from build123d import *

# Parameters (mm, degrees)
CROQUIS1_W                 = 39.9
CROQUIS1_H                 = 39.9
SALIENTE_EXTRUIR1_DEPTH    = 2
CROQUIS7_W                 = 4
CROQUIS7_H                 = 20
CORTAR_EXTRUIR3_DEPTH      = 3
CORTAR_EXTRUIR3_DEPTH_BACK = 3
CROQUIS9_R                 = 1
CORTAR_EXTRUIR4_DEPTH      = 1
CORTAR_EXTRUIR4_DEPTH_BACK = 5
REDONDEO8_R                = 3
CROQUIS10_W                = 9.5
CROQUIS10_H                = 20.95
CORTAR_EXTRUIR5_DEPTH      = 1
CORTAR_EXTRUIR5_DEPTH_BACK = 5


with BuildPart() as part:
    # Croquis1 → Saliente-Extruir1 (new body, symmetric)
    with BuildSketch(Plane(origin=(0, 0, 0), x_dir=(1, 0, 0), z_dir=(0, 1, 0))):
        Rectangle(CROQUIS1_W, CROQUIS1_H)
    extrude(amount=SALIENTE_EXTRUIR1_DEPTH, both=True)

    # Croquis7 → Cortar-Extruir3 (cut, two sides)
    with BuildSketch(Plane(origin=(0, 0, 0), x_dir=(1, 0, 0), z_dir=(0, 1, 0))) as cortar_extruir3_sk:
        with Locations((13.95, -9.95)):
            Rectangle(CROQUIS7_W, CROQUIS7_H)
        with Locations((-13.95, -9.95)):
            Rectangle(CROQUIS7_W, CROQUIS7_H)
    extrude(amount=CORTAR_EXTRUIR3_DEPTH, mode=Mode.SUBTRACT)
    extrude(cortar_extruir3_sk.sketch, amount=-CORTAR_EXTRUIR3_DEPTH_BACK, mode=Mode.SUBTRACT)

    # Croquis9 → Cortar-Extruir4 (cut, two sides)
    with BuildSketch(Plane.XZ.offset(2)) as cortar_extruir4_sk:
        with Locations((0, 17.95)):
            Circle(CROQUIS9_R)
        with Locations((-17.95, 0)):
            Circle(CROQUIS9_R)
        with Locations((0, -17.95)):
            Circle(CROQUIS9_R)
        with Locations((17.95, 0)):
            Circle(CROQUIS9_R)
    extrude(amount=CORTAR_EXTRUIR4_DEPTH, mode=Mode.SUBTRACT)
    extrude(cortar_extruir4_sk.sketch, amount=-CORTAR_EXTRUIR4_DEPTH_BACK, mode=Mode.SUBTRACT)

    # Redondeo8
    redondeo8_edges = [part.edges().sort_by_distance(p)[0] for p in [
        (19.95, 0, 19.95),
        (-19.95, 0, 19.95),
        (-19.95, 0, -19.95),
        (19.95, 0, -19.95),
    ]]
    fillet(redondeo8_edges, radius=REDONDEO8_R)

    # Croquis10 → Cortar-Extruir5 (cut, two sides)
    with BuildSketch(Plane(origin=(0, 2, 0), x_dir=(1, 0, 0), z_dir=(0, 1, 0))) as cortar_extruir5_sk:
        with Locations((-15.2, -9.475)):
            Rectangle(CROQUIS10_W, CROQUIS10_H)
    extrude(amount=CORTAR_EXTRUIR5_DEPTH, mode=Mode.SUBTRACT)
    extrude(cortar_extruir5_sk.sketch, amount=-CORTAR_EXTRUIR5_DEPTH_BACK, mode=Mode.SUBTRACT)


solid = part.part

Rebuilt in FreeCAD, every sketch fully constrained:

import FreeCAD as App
import Part
import Sketcher

V = App.Vector


def edges_at(feature, points):
    """Names of the edges that pass closest to the given points."""
    edges = feature.Shape.Edges
    near = lambda p: min(range(len(edges)), key=lambda i: edges[i].distToShape(Part.Vertex(*p))[0])
    return sorted({f"Edge{near(p) + 1}" for p in points})


def add_polygon(sketch, points):
    """Adds a closed chain of lines whose ends are joined by coincident constraints."""
    first, n = sketch.GeometryCount, len(points)
    for a, b in zip(points, points[1:] + points[:1]):
        sketch.addGeometry(Part.LineSegment(App.Vector(*a, 0), App.Vector(*b, 0)), False)
    for i in range(n):
        sketch.addConstraint(Sketcher.Constraint("Coincident", first + i, 2, first + (i + 1) % n, 1))

doc = App.newDocument("Part")
body = doc.addObject("PartDesign::Body", "Body")

# Sketch on XZ plane
sketch1 = body.newObject("Sketcher::SketchObject", "Sketch")
sketch1.AttachmentSupport = (doc.getObject("XZ_Plane"), [""])
sketch1.MapMode = "FlatFace"
add_polygon(sketch1, [(-19.95, -19.95), (-19.95, 19.95), (19.95, 19.95), (19.95, -19.95)])  # lines 0-3
sketch1.addConstraint([
    Sketcher.Constraint("Vertical", 0),
    Sketcher.Constraint("Horizontal", 1),
    Sketcher.Constraint("Vertical", 2),
    Sketcher.Constraint("Horizontal", 3),
    Sketcher.Constraint("Symmetric", 0, 2, 2, 2, -1, 1),
    Sketcher.Constraint("Equal", 3, 0),
    Sketcher.Constraint("DistanceX", 1, 1, 1, 2, 39.9),
])
pad1 = body.newObject("PartDesign::Pad", "Pad")
pad1.Profile = sketch1
pad1.Length = 4
pad1.Midplane = True

# Sketch on XZ plane
sketch2 = body.newObject("Sketcher::SketchObject", "Sketch001")
sketch2.AttachmentSupport = (doc.getObject("XZ_Plane"), [""])
sketch2.MapMode = "FlatFace"
add_polygon(sketch2, [(11.95, -0.05), (11.95, 19.95), (15.95, 19.95), (15.95, -0.05)])  # lines 0-3
add_polygon(sketch2, [(-15.95, -0.05), (-15.95, 19.95), (-11.95, 19.95), (-11.95, -0.05)])  # lines 4-7
sketch2.addConstraint([
    Sketcher.Constraint("Vertical", 0),
    Sketcher.Constraint("Horizontal", 1),
    Sketcher.Constraint("Vertical", 2),
    Sketcher.Constraint("Horizontal", 3),
    Sketcher.Constraint("Vertical", 4),
    Sketcher.Constraint("Horizontal", 5),
    Sketcher.Constraint("Vertical", 6),
    Sketcher.Constraint("Horizontal", 7),
    Sketcher.Constraint("Symmetric", 1, 2, 4, 2, -2),
    Sketcher.Constraint("Symmetric", 3, 2, 6, 2, -2),
    Sketcher.Constraint("DistanceX", 1, 1, 1, 2, 4.0),
    Sketcher.Constraint("DistanceY", 0, 1, 0, 2, 20.0),
    Sketcher.Constraint("DistanceX", 4, 2, 0, 2, 27.9),
    Sketcher.Constraint("DistanceY", -1, 1, 0, 2, 19.95),
])
pocket1 = body.newObject("PartDesign::Pocket", "Pocket")
pocket1.Profile = sketch2
pocket1.Type = "ThroughAll"
pocket1.Midplane = True

# Sketch on XZ plane
sketch3 = body.newObject("Sketcher::SketchObject", "Sketch002")
sketch3.AttachmentSupport = (doc.getObject("XZ_Plane"), [""])
sketch3.MapMode = "FlatFace"
sketch3.AttachmentOffset = App.Placement(V(0, 0, 2), App.Rotation())
sketch3.addGeometry([
    Part.Circle(V(0, 17.95, 0), V(0, 0, 1), 1),
    Part.Circle(V(-17.95, 0, 0), V(0, 0, 1), 1),
    Part.Circle(V(0, -17.95, 0), V(0, 0, 1), 1),
    Part.Circle(V(17.95, 0, 0), V(0, 0, 1), 1),
], False)
sketch3.addConstraint([
    Sketcher.Constraint("Equal", 0, 1),
    Sketcher.Constraint("Equal", 1, 2),
    Sketcher.Constraint("Equal", 2, 3),
    Sketcher.Constraint("Symmetric", 0, 3, 2, 3, -1, 1),
    Sketcher.Constraint("Symmetric", 1, 3, 3, 3, -1, 1),
    Sketcher.Constraint("PointOnObject", 0, 3, -2),
    Sketcher.Constraint("PointOnObject", 1, 3, -1),
    Sketcher.Constraint("Diameter", 0, 2.0),
    Sketcher.Constraint("DistanceY", 2, 3, 0, 3, 35.9),
    Sketcher.Constraint("DistanceX", 1, 3, 3, 3, 35.9),
])
pocket2 = body.newObject("PartDesign::Pocket", "Pocket001")
pocket2.Profile = sketch3
pocket2.Type = "ThroughAll"
pocket2.Midplane = True
doc.recompute()

fillet = body.newObject("PartDesign::Fillet", "Fillet")
fillet.Base = (pocket2, edges_at(pocket2, [
    (19.95, 0, 19.95),
    (-19.95, 0, 19.95),
    (-19.95, 0, -19.95),
    (19.95, 0, -19.95),
]))
fillet.Radius = 3

# Sketch on XZ plane
sketch4 = body.newObject("Sketcher::SketchObject", "Sketch003")
sketch4.AttachmentSupport = (doc.getObject("XZ_Plane"), [""])
sketch4.MapMode = "FlatFace"
sketch4.AttachmentOffset = App.Placement(V(0, 0, -2), App.Rotation())
add_polygon(sketch4, [(-19.95, -1), (-19.95, 19.95), (-10.45, 19.95), (-10.45, -1)])  # lines 0-3
sketch4.addConstraint([
    Sketcher.Constraint("Vertical", 0),
    Sketcher.Constraint("Horizontal", 1),
    Sketcher.Constraint("Vertical", 2),
    Sketcher.Constraint("Horizontal", 3),
    Sketcher.Constraint("DistanceX", 1, 1, 1, 2, 9.5),
    Sketcher.Constraint("DistanceY", 2, 2, -1, 1, 1.0),
    Sketcher.Constraint("DistanceY", 0, 1, 0, 2, 20.95),
    Sketcher.Constraint("DistanceX", 0, 2, -1, 1, 19.95),
])
pocket3 = body.newObject("PartDesign::Pocket", "Pocket002")
pocket3.Profile = sketch4
pocket3.Type = "ThroughAll"
pocket3.Midplane = True

doc.recompute()
